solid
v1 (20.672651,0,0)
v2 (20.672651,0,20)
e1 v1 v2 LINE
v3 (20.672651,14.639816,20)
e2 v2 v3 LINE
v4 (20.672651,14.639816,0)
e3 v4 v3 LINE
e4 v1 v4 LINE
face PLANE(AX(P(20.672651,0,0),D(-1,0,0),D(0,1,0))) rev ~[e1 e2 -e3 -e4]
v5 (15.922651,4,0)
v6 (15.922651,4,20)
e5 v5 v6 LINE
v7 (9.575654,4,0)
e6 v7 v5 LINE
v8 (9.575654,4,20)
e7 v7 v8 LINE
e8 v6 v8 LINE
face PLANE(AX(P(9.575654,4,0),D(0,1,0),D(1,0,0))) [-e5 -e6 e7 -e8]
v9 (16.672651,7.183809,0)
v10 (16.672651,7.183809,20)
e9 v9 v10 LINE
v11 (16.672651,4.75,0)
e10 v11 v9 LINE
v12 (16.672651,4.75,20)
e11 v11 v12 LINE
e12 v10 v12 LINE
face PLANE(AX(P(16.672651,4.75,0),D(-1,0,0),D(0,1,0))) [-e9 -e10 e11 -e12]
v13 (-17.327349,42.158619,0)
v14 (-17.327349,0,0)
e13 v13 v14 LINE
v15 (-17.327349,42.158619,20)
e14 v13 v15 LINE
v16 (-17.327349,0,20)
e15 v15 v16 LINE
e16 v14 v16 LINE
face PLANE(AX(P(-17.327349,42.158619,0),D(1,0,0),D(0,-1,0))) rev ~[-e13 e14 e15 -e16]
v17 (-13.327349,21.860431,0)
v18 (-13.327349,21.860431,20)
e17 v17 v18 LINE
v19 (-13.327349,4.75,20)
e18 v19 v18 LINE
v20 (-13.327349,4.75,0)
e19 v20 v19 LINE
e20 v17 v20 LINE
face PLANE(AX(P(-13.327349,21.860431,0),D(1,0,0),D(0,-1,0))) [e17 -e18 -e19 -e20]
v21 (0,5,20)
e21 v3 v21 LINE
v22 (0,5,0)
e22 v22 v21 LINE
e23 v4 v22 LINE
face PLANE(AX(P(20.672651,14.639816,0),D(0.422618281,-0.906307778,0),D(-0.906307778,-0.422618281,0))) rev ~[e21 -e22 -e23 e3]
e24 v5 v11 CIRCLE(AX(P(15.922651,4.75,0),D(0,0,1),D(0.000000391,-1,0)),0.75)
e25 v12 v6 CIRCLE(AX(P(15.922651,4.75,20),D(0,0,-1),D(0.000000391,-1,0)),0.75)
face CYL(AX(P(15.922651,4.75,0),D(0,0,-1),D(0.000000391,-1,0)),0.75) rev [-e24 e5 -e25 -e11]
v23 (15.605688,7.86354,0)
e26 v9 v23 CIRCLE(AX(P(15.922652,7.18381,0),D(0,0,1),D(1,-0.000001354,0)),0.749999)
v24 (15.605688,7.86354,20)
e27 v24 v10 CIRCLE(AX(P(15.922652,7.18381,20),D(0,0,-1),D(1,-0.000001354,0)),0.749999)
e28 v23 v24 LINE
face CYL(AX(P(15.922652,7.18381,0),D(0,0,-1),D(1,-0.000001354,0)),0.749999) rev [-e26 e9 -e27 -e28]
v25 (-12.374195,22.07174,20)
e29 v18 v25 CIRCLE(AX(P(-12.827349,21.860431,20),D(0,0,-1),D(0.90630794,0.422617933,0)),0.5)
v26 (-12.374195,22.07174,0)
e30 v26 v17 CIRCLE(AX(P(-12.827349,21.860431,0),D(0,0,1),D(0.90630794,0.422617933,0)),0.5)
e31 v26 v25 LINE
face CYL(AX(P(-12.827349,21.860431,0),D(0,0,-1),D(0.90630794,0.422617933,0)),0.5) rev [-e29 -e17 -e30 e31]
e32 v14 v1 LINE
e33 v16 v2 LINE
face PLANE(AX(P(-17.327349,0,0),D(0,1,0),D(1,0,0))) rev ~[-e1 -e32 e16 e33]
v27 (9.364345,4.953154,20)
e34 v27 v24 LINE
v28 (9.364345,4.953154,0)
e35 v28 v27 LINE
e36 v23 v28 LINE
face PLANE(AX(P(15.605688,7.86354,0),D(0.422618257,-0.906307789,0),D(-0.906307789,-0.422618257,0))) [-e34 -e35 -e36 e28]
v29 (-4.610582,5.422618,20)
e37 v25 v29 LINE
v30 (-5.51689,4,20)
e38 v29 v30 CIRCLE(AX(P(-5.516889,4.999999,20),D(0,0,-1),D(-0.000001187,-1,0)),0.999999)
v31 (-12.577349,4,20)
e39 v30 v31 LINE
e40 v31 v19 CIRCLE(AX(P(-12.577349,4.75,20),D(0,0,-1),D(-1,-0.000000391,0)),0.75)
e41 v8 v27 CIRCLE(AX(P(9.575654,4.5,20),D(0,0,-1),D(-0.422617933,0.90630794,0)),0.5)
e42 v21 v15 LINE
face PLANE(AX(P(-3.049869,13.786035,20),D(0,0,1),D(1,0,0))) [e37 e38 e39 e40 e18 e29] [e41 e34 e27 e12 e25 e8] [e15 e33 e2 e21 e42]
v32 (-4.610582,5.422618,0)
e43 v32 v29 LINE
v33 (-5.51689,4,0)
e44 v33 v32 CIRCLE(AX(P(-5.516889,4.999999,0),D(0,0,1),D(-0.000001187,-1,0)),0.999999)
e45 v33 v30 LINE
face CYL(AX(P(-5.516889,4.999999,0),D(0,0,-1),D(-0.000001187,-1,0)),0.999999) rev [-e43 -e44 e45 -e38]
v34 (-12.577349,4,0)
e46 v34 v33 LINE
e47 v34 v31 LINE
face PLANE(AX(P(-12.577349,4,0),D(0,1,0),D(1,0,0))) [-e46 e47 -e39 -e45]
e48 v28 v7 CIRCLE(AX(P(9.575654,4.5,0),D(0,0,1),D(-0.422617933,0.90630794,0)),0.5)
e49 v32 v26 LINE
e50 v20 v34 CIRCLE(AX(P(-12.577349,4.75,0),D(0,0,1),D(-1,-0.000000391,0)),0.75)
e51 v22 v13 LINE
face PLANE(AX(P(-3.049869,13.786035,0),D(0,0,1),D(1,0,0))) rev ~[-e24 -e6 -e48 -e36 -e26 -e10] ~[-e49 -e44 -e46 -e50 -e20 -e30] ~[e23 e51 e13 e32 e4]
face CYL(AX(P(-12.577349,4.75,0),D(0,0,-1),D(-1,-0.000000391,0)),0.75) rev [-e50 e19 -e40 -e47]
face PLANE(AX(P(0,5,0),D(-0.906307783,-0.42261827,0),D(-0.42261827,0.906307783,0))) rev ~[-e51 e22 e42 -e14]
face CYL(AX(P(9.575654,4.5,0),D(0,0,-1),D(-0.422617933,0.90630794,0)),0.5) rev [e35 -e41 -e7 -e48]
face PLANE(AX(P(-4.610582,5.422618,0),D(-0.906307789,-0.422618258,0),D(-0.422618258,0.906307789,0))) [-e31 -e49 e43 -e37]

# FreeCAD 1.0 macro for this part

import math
import FreeCAD as App
import Part
import Sketcher
Q = App.Units.Quantity

doc = App.newDocument("Part")
body = doc.addObject("PartDesign::Body", "Body")

sketch1 = doc.addObject("Sketcher::SketchObject", "Sketch")
body.addObject(sketch1)
sketch1.AttachmentSupport = (doc.XY_Plane, [""])
sketch1.MapMode = "FlatFace"
sketch1.addGeometry(Part.LineSegment(App.Vector(-17.327349, 0, 0), App.Vector(20.672651, 0, 0)), False)
sketch1.addGeometry(Part.LineSegment(App.Vector(20.672651, 0, 0), App.Vector(20.672651, 14.639816, 0)), False)
sketch1.addGeometry(Part.LineSegment(App.Vector(20.672651, 14.639816, 0), App.Vector(0, 5, 0)), False)
sketch1.addGeometry(Part.LineSegment(App.Vector(0, 5, 0), App.Vector(-17.327349, 42.158619, 0)), False)
sketch1.addGeometry(Part.LineSegment(App.Vector(-17.327349, 42.158619, 0), App.Vector(-17.327349, 0, 0)), False)
sketch1.addConstraint(Sketcher.Constraint("Coincident", 0, 2, 1, 1))
sketch1.addConstraint(Sketcher.Constraint("Coincident", 1, 2, 2, 1))
sketch1.addConstraint(Sketcher.Constraint("Coincident", 2, 2, 3, 1))
sketch1.addConstraint(Sketcher.Constraint("Coincident", 3, 2, 4, 1))
sketch1.addConstraint(Sketcher.Constraint("Coincident", 4, 2, 0, 1))
sketch1.addConstraint(Sketcher.Constraint("Horizontal", 0))
sketch1.addConstraint(Sketcher.Constraint("Vertical", 1))
sketch1.addConstraint(Sketcher.Constraint("Vertical", 4))
sketch1.addConstraint(Sketcher.Constraint("PointOnObject", 0, 2, -1))
sketch1.addConstraint(Sketcher.Constraint("PointOnObject", 2, 2, -2))
sketch1.addConstraint(Sketcher.Constraint("Perpendicular", 2, 3))
sketch1.addConstraint(Sketcher.Constraint("DistanceX", 0, 1, 0, 2, Q("38 mm")))
sketch1.addConstraint(Sketcher.Constraint("Angle", 2, Q("-154.999999 deg")))
sketch1.addConstraint(Sketcher.Constraint("Distance", 3, Q("41 mm")))
sketch1.addConstraint(Sketcher.Constraint("DistanceY", -1, 1, 2, 2, Q("5 mm")))
pad1 = doc.addObject("PartDesign::Pad", "Pad")
body.addObject(pad1)
pad1.Profile = sketch1
pad1.Length = 20

sketch2 = doc.addObject("Sketcher::SketchObject", "Sketch001")
body.addObject(sketch2)
sketch2.AttachmentSupport = (doc.XY_Plane, [""])
sketch2.MapMode = "FlatFace"
sketch2.addGeometry(Part.ArcOfCircle(Part.Circle(App.Vector(-12.577349, 4.75, 0), App.Vector(0, 0, 1), 0.75), math.radians(-179.999978), math.radians(-90.000022)), False)
sketch2.addGeometry(Part.LineSegment(App.Vector(-12.577349, 4, 0), App.Vector(-5.51689, 4, 0)), False)
sketch2.addGeometry(Part.ArcOfCircle(Part.Circle(App.Vector(-5.516889, 4.999999, 0), App.Vector(0, 0, 1), 0.999999), math.radians(-90.000068), math.radians(25.000046)), False)
sketch2.addGeometry(Part.LineSegment(App.Vector(-4.610582, 5.422618, 0), App.Vector(-12.374195, 22.07174, 0)), False)
sketch2.addGeometry(Part.ArcOfCircle(Part.Circle(App.Vector(-12.827349, 21.860431, 0), App.Vector(0, 0, 1), 0.5), math.radians(24.999979), math.radians(180.000003)), False)
sketch2.addGeometry(Part.LineSegment(App.Vector(-13.327349, 21.860431, 0), App.Vector(-13.327349, 4.75, 0)), False)
sketch2.addGeometry(Part.ArcOfCircle(Part.Circle(App.Vector(15.922652, 7.18381, 0), App.Vector(0, 0, 1), 0.749999), math.radians(-0.000078), math.radians(115.000031)), False)
sketch2.addGeometry(Part.LineSegment(App.Vector(15.605688, 7.86354, 0), App.Vector(9.364345, 4.953154, 0)), False)
sketch2.addGeometry(Part.ArcOfCircle(Part.Circle(App.Vector(9.575654, 4.5, 0), App.Vector(0, 0, 1), 0.5), math.radians(114.999979), math.radians(270.000003)), False)
sketch2.addGeometry(Part.LineSegment(App.Vector(9.575654, 4, 0), App.Vector(15.922651, 4, 0)), False)
sketch2.addGeometry(Part.ArcOfCircle(Part.Circle(App.Vector(15.922651, 4.75, 0), App.Vector(0, 0, 1), 0.75), math.radians(-89.999978), math.radians(-0.000022)), False)
sketch2.addGeometry(Part.LineSegment(App.Vector(16.672651, 4.75, 0), App.Vector(16.672651, 7.183809, 0)), False)
sketch2.addConstraint(Sketcher.Constraint("Tangent", 0, 2, 1, 1))
sketch2.addConstraint(Sketcher.Constraint("Tangent", 1, 2, 2, 1))
sketch2.addConstraint(Sketcher.Constraint("Tangent", 2, 2, 3, 1))
sketch2.addConstraint(Sketcher.Constraint("Tangent", 3, 2, 4, 1))
sketch2.addConstraint(Sketcher.Constraint("Tangent", 4, 2, 5, 1))
sketch2.addConstraint(Sketcher.Constraint("Tangent", 5, 2, 0, 1))
sketch2.addConstraint(Sketcher.Constraint("Tangent", 6, 2, 7, 1))
sketch2.addConstraint(Sketcher.Constraint("Tangent", 7, 2, 8, 1))
sketch2.addConstraint(Sketcher.Constraint("Tangent", 8, 2, 9, 1))
sketch2.addConstraint(Sketcher.Constraint("Tangent", 9, 2, 10, 1))
sketch2.addConstraint(Sketcher.Constraint("Tangent", 10, 2, 11, 1))
sketch2.addConstraint(Sketcher.Constraint("Tangent", 11, 2, 6, 1))
sketch2.addConstraint(Sketcher.Constraint("Horizontal", 1))
sketch2.addConstraint(Sketcher.Constraint("Vertical", 5))
sketch2.addConstraint(Sketcher.Constraint("Horizontal", 9))
sketch2.addConstraint(Sketcher.Constraint("Vertical", 11))
sketch2.addConstraint(Sketcher.Constraint("Equal", 0, 6))
sketch2.addConstraint(Sketcher.Constraint("Equal", 4, 8))
sketch2.addConstraint(Sketcher.Constraint("Equal", 6, 10))
sketch2.addConstraint(Sketcher.Constraint("Perpendicular", 3, 7))
sketch2.addConstraint(Sketcher.Constraint("Horizontal", 0, 3, 10, 3))
sketch2.addConstraint(Sketcher.Constraint("Radius", 2, Q("0.999999 mm")))
sketch2.addConstraint(Sketcher.Constraint("Radius", 4, Q("0.5 mm")))
sketch2.addConstraint(Sketcher.Constraint("Angle", 3, Q("115 deg")))
sketch2.addConstraint(Sketcher.Constraint("Radius", 0, Q("0.75 mm")))
sketch2.addConstraint(Sketcher.Constraint("DistanceY", -1, 1, 2, 3, Q("4.999999 mm")))
sketch2.addConstraint(Sketcher.Constraint("DistanceX", 0, 3, 6, 3, Q("28.5 mm")))
sketch2.addConstraint(Sketcher.Constraint("DistanceX", 1, 1, 1, 2, Q("7.060459 mm")))
sketch2.addConstraint(Sketcher.Constraint("DistanceY", 11, 1, 11, 2, Q("2.433809 mm")))
sketch2.addConstraint(Sketcher.Constraint("DistanceX", 0, 3, -1, 1, Q("12.577349 mm")))
pocket1 = doc.addObject("PartDesign::Pocket", "Pocket")
body.addObject(pocket1)
pocket1.Profile = sketch2
pocket1.Length = 25
pocket1.Reversed = True

doc.recompute()
